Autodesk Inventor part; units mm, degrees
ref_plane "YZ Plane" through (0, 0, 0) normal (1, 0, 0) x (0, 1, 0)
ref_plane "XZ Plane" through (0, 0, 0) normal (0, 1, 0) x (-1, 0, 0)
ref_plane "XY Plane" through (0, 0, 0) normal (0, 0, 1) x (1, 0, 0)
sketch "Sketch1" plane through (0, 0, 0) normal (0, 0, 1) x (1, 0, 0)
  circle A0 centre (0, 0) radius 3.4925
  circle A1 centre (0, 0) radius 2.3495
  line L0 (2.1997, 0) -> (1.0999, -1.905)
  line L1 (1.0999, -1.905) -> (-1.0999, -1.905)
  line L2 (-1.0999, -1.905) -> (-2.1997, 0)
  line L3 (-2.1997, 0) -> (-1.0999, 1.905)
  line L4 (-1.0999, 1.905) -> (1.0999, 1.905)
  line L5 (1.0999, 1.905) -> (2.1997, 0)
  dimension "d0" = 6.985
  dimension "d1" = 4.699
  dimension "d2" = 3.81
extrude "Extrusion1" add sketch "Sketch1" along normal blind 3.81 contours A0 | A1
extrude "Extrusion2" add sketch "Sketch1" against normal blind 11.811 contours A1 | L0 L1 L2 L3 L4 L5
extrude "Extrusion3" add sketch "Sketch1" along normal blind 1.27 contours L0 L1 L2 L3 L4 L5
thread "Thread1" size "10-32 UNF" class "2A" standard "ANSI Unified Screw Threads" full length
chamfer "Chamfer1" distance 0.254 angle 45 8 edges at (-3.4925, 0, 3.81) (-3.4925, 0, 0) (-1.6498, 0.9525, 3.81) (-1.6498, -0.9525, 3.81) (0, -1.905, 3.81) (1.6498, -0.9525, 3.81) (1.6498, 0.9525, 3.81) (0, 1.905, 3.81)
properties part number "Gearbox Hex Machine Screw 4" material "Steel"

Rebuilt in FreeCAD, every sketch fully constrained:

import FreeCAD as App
import Part
import Sketcher
Q = App.Units.Quantity


def edges_at(feature, points):
    """Names of the edges that pass closest to the given points."""
    edges = feature.Shape.Edges
    near = lambda p: min(range(len(edges)), key=lambda i: edges[i].distToShape(Part.Vertex(*p))[0])
    return sorted({f"Edge{near(p) + 1}" for p in points})


def add_polygon(sketch, points):
    """Adds a closed chain of lines whose ends are joined by coincident constraints."""
    first, n = sketch.GeometryCount, len(points)
    for a, b in zip(points, points[1:] + points[:1]):
        sketch.addGeometry(Part.LineSegment(App.Vector(*a, 0), App.Vector(*b, 0)), False)
    for i in range(n):
        sketch.addConstraint(Sketcher.Constraint("Coincident", first + i, 2, first + (i + 1) % n, 1))

doc = App.newDocument("Part")
body = doc.addObject("PartDesign::Body", "Body")

# Sketch on XY plane
sketch1 = doc.addObject("Sketcher::SketchObject", "Sketch")
body.addObject(sketch1)
sketch1.AttachmentSupport = (doc.XY_Plane, [""])
sketch1.MapMode = "FlatFace"
sketch1.addGeometry(Part.Circle(App.Vector(0, 0, 0), App.Vector(0, 0, 1), 3.5), False)  # 0
add_polygon(sketch1, [(2.2, 0), (1.1, -1.9), (-1.1, -1.9), (-2.2, 0), (-1.1, 1.9), (1.1, 1.9)])  # lines 1-6
sketch1.addConstraint([
    Sketcher.Constraint("Horizontal", 2),
    Sketcher.Constraint("Horizontal", 5),
    Sketcher.Constraint("Coincident", 0, 3, -1, 1),
    Sketcher.Constraint("Symmetric", 1, 2, 4, 2, -1, 1),
    Sketcher.Constraint("Symmetric", 3, 2, 6, 2, -1, 1),
    Sketcher.Constraint("PointOnObject", 3, 2, -1),
    Sketcher.Constraint("Parallel", 3, 6),
    Sketcher.Constraint("Vertical", 2, 2, 4, 2),
    Sketcher.Constraint("Diameter", 0, Q("0.275 in")),
    Sketcher.Constraint("DistanceY", 2, 2, 4, 2, Q("0.15 in")),
    Sketcher.Constraint("Angle", 1, Q("-119.9988 deg")),
    Sketcher.Constraint("DistanceX", 2, 2, 2, 1, Q("0.0866 in")),
])
pad1 = doc.addObject("PartDesign::Pad", "Pad")
body.addObject(pad1)
pad1.Profile = sketch1
pad1.Length = Q("0.15 in")

# Sketch on XY plane
sketch2 = doc.addObject("Sketcher::SketchObject", "Sketch001")
body.addObject(sketch2)
sketch2.AttachmentSupport = (doc.XY_Plane, [""])
sketch2.MapMode = "FlatFace"
sketch2.addGeometry(Part.Circle(App.Vector(0, 0, 0), App.Vector(0, 0, 1), 2.3), False)
sketch2.addConstraint([
    Sketcher.Constraint("Coincident", 0, 3, -1, 1),
    Sketcher.Constraint("Diameter", 0, Q("0.185 in")),
])
pad2 = doc.addObject("PartDesign::Pad", "Pad001")
body.addObject(pad2)
pad2.Profile = sketch2
pad2.Length = Q("0.465 in")
pad2.Reversed = True

# Sketch on XY plane
sketch3 = doc.addObject("Sketcher::SketchObject", "Sketch002")
body.addObject(sketch3)
sketch3.AttachmentSupport = (doc.XY_Plane, [""])
sketch3.MapMode = "FlatFace"
add_polygon(sketch3, [(1.1, -1.9), (2.2, 0), (1.1, 1.9), (-1.1, 1.9), (-2.2, 0), (-1.1, -1.9)])  # lines 0-5
sketch3.addConstraint([
    Sketcher.Constraint("Horizontal", 2),
    Sketcher.Constraint("Horizontal", 5),
    Sketcher.Constraint("Symmetric", 0, 2, 3, 2, -1, 1),
    Sketcher.Constraint("Symmetric", 1, 2, 4, 2, -1, 1),
    Sketcher.Constraint("PointOnObject", 0, 2, -1),
    Sketcher.Constraint("Parallel", 0, 3),
    Sketcher.Constraint("Vertical", 2, 2, 4, 2),
    Sketcher.Constraint("DistanceY", 4, 2, 2, 2, Q("0.15 in")),
    Sketcher.Constraint("Angle", 0, Q("60.0012 deg")),
    Sketcher.Constraint("DistanceX", 2, 2, 2, 1, Q("0.0866 in")),
])
pad3 = doc.addObject("PartDesign::Pad", "Pad002")
body.addObject(pad3)
pad3.Profile = sketch3
pad3.Length = Q("0.05 in")
doc.recompute()

chamfer = doc.addObject("PartDesign::Chamfer", "Chamfer")
body.addObject(chamfer)
chamfer.Base = (pad3, edges_at(pad3, [
    (-3.493, 0, 3.81),
    (-3.493, 0, 0),
    (-1.65, 0.953, 3.81),
    (-1.65, -0.953, 3.81),
    (0, -1.905, 3.81),
    (1.65, -0.953, 3.81),
    (1.65, 0.953, 3.81),
    (0, 1.905, 3.81),
]))
chamfer.Size = Q("0.01 in")

doc.recompute()
